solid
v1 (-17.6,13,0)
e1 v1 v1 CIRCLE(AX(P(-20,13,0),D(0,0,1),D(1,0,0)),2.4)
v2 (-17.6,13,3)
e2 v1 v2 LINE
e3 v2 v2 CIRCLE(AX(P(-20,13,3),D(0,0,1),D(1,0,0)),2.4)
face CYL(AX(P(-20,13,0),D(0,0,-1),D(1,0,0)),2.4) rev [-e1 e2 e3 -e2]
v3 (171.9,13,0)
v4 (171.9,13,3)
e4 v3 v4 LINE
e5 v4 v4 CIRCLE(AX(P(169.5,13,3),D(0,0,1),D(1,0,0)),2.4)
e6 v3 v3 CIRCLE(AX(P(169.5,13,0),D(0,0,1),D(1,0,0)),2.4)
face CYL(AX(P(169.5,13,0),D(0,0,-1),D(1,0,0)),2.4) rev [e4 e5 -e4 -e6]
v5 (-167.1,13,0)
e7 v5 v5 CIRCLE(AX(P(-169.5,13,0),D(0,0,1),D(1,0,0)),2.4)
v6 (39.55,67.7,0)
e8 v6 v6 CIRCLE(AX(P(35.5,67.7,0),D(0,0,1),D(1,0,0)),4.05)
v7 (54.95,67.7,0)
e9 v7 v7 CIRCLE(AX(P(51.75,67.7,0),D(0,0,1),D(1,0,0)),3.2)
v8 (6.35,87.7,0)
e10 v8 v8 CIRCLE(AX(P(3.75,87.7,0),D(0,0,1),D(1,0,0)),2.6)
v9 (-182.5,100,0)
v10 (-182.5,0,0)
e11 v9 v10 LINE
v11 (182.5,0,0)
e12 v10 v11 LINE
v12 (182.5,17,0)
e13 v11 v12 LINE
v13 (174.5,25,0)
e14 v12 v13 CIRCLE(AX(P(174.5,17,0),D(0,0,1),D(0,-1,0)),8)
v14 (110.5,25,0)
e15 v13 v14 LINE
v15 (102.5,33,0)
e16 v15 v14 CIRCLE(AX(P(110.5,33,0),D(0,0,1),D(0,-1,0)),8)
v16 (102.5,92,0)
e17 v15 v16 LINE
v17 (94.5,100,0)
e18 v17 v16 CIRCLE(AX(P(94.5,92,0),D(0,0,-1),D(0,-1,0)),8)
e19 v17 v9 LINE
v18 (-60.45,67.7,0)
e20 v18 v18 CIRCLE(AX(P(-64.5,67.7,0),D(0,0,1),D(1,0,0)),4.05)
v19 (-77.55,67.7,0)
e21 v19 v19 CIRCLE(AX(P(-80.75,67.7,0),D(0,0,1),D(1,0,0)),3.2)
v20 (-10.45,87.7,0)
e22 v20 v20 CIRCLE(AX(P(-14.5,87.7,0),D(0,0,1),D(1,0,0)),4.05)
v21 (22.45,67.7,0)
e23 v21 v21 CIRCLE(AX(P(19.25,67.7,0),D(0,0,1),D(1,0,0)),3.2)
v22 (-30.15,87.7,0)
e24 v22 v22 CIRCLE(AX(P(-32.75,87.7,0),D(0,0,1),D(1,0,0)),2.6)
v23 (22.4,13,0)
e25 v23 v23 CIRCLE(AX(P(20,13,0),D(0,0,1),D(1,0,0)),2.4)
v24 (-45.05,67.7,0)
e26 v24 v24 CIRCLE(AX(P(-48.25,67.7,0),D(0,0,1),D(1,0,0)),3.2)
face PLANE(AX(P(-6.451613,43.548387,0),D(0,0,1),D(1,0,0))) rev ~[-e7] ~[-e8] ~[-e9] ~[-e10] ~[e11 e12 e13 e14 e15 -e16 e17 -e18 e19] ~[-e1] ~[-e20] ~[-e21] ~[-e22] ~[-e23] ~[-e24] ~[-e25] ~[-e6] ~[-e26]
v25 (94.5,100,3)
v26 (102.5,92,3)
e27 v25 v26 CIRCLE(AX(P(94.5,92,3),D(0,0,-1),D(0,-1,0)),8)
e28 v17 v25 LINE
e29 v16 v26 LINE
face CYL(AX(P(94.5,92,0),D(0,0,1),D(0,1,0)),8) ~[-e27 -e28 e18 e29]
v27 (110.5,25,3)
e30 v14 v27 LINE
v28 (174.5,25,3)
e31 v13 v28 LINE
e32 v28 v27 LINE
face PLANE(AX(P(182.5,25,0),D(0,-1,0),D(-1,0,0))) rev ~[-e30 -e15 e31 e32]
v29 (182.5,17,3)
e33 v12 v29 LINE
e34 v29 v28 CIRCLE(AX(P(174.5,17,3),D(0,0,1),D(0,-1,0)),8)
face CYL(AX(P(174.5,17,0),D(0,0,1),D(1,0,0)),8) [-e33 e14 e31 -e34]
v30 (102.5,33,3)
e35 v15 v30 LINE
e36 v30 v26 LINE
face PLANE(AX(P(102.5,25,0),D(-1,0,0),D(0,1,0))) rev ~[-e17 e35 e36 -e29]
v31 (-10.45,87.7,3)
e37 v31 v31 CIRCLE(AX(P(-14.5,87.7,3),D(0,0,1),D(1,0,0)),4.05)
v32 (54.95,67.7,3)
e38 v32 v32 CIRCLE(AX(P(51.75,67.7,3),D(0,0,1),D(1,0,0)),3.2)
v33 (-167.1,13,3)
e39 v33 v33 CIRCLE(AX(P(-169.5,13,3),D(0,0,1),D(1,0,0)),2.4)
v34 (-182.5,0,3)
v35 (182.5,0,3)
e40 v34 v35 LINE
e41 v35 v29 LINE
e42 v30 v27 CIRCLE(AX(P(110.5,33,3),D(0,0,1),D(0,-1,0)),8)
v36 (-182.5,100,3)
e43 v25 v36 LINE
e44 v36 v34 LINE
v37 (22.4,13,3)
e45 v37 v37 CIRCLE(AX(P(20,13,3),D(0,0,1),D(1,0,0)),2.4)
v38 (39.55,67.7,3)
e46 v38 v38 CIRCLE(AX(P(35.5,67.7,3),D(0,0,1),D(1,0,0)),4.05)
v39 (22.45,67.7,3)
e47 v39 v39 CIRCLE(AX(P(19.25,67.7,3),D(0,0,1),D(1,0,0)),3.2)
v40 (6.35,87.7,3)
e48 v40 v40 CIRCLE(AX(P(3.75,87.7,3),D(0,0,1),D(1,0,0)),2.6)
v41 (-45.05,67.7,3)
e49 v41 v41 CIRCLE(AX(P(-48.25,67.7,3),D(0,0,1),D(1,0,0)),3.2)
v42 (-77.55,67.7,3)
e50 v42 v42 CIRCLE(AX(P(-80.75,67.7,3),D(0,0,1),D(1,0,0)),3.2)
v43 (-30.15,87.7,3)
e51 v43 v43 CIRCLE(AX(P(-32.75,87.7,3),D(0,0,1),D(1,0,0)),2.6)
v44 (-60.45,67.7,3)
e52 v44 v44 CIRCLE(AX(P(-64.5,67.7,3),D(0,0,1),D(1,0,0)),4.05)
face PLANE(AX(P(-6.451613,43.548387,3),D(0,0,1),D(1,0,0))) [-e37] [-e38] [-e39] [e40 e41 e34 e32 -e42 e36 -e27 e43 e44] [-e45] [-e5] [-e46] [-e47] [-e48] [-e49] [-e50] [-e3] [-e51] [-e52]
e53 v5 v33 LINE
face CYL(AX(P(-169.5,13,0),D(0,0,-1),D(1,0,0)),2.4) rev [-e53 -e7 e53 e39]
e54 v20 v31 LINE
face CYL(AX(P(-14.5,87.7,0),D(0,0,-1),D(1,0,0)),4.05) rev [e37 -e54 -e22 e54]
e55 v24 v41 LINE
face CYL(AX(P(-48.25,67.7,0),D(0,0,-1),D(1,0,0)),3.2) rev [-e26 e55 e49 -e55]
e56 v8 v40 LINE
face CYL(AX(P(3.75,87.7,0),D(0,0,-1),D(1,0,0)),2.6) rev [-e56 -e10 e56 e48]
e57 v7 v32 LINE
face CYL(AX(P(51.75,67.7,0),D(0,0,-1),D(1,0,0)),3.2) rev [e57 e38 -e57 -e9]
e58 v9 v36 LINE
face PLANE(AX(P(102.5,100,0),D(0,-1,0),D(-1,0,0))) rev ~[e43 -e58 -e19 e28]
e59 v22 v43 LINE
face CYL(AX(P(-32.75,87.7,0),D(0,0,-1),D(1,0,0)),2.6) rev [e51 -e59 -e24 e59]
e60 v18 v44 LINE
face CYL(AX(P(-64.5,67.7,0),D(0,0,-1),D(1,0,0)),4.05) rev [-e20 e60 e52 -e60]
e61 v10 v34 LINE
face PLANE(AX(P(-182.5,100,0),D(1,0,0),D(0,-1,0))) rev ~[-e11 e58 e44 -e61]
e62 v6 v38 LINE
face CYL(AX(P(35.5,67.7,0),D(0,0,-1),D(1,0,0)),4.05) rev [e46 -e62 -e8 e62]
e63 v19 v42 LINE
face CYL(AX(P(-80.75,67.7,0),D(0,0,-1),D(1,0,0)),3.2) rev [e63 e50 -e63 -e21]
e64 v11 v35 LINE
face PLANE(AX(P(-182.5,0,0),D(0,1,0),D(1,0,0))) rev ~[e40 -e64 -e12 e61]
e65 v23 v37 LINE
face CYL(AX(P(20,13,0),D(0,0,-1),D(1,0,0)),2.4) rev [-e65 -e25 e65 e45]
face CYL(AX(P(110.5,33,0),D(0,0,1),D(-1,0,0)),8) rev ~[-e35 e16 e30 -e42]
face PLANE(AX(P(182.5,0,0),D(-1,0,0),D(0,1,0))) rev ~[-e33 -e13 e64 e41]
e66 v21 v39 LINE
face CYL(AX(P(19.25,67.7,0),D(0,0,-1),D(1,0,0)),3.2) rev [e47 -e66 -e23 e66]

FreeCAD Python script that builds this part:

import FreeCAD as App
import Part
import Sketcher
from FreeCAD import Vector
Q = App.Units.Quantity


def edges_at(feature, points):
    """Names of the edges that pass closest to the given points."""
    edges = feature.Shape.Edges
    near = lambda p: min(range(len(edges)), key=lambda i: edges[i].distToShape(Part.Vertex(*p))[0])
    return sorted({f"Edge{near(p) + 1}" for p in points})

doc = App.newDocument("Part")
params = doc.addObject("Spreadsheet::Sheet", "Params")
for row, (alias, value) in enumerate([
    ("sketch1_diameter", "4.8 mm"),
    ("sketch1_diameter2", "6.4 mm"),
    ("sketch1_diameter3", "8.1 mm"),
    ("sketch1_diameter4", "5.2 mm"),
    ("sketch1_width", "365 mm"),
    ("pad1_length", "3 mm"),
    ("fillet_radius", "8 mm"),
], start=1):
    params.set(f"A{row}", alias)
    params.set(f"B{row}", "=" + value)
    params.setAlias(f"B{row}", alias)

body = doc.addObject("PartDesign::Body", "Body")

# Sketch on XY plane
sketch1 = body.newObject("Sketcher::SketchObject", "Sketch")
sketch1.AttachmentSupport = (doc.getObject("XY_Plane"), [""])
sketch1.MapMode = "FlatFace"
sketch1.addGeometry(Part.LineSegment(Vector(-182.5, 100, 0), Vector(-182.5, 0, 0)), False)
sketch1.addGeometry(Part.LineSegment(Vector(-182.5, 0, 0), Vector(182.5, 0, 0)), False)
sketch1.addGeometry(Part.LineSegment(Vector(182.5, 0, 0), Vector(182.5, 25, 0)), False)
sketch1.addGeometry(Part.LineSegment(Vector(182.5, 25, 0), Vector(102.5, 25, 0)), False)
sketch1.addGeometry(Part.LineSegment(Vector(102.5, 25, 0), Vector(102.5, 100, 0)), False)
sketch1.addGeometry(Part.LineSegment(Vector(102.5, 100, 0), Vector(-182.5, 100, 0)), False)
sketch1.addGeometry(Part.Circle(Vector(-169.5, 13, 0), Vector(0, 0, 1), 2.4), False)
sketch1.addGeometry(Part.Circle(Vector(-20, 13, 0), Vector(0, 0, 1), 2.4), False)
sketch1.addGeometry(Part.Circle(Vector(20, 13, 0), Vector(0, 0, 1), 2.4), False)
sketch1.addGeometry(Part.Circle(Vector(169.5, 13, 0), Vector(0, 0, 1), 2.4), False)
sketch1.addGeometry(Part.Circle(Vector(-80.8, 67.7, 0), Vector(0, 0, 1), 3.2), False)
sketch1.addGeometry(Part.Circle(Vector(-64.5, 67.7, 0), Vector(0, 0, 1), 4), False)
sketch1.addGeometry(Part.Circle(Vector(-48.2, 67.7, 0), Vector(0, 0, 1), 3.2), False)
sketch1.addGeometry(Part.Circle(Vector(-32.8, 87.7, 0), Vector(0, 0, 1), 2.6), False)
sketch1.addGeometry(Part.Circle(Vector(-14.5, 87.7, 0), Vector(0, 0, 1), 4), False)
sketch1.addGeometry(Part.Circle(Vector(19.2, 67.7, 0), Vector(0, 0, 1), 3.2), False)
sketch1.addGeometry(Part.Circle(Vector(35.5, 67.7, 0), Vector(0, 0, 1), 4), False)
sketch1.addGeometry(Part.Circle(Vector(51.8, 67.7, 0), Vector(0, 0, 1), 3.2), False)
sketch1.addGeometry(Part.Circle(Vector(3.8, 87.7, 0), Vector(0, 0, 1), 2.6), False)
sketch1.addConstraint(Sketcher.Constraint("Coincident", 0, 2, 1, 1))
sketch1.addConstraint(Sketcher.Constraint("Coincident", 1, 2, 2, 1))
sketch1.addConstraint(Sketcher.Constraint("Coincident", 2, 2, 3, 1))
sketch1.addConstraint(Sketcher.Constraint("Coincident", 3, 2, 4, 1))
sketch1.addConstraint(Sketcher.Constraint("Coincident", 4, 2, 5, 1))
sketch1.addConstraint(Sketcher.Constraint("Coincident", 5, 2, 0, 1))
sketch1.addConstraint(Sketcher.Constraint("Vertical", 0))
sketch1.addConstraint(Sketcher.Constraint("Horizontal", 1))
sketch1.addConstraint(Sketcher.Constraint("Vertical", 2))
sketch1.addConstraint(Sketcher.Constraint("Horizontal", 3))
sketch1.addConstraint(Sketcher.Constraint("Vertical", 4))
sketch1.addConstraint(Sketcher.Constraint("Horizontal", 5))
sketch1.addConstraint(Sketcher.Constraint("Equal", 6, 7))
sketch1.addConstraint(Sketcher.Constraint("Equal", 7, 8))
sketch1.addConstraint(Sketcher.Constraint("Equal", 8, 9))
sketch1.addConstraint(Sketcher.Constraint("Equal", 10, 12))
sketch1.addConstraint(Sketcher.Constraint("Equal", 11, 14))
sketch1.addConstraint(Sketcher.Constraint("Equal", 12, 15))
sketch1.addConstraint(Sketcher.Constraint("Equal", 14, 16))
sketch1.addConstraint(Sketcher.Constraint("Equal", 15, 17))
sketch1.addConstraint(Sketcher.Constraint("Equal", 13, 18))
sketch1.addConstraint(Sketcher.Constraint("Symmetric", 0, 2, 1, 2, -1, 1))
sketch1.addConstraint(Sketcher.Constraint("Symmetric", 7, 3, 8, 3, -2))
sketch1.addConstraint(Sketcher.Constraint("Symmetric", 6, 3, 9, 3, -2))
sketch1.addConstraint(Sketcher.Constraint("Horizontal", 6, 3, 7, 3))
sketch1.addConstraint(Sketcher.Constraint("Horizontal", 10, 3, 11, 3))
sketch1.addConstraint(Sketcher.Constraint("Horizontal", 11, 3, 12, 3))
sketch1.addConstraint(Sketcher.Constraint("Horizontal", 13, 3, 14, 3))
sketch1.addConstraint(Sketcher.Constraint("Horizontal", 12, 3, 15, 3))
sketch1.addConstraint(Sketcher.Constraint("Horizontal", 15, 3, 16, 3))
sketch1.addConstraint(Sketcher.Constraint("Horizontal", 16, 3, 17, 3))
sketch1.addConstraint(Sketcher.Constraint("Horizontal", 14, 3, 18, 3))
sketch1.addConstraint(Sketcher.Constraint("Diameter", 6, Q("4.8 mm")))
sketch1.addConstraint(Sketcher.Constraint("Diameter", 10, Q("6.4 mm")))
sketch1.addConstraint(Sketcher.Constraint("Diameter", 11, Q("8.1 mm")))
sketch1.addConstraint(Sketcher.Constraint("Diameter", 13, Q("5.2 mm")))
sketch1.addConstraint(Sketcher.Constraint("DistanceX", 1, 1, 1, 2, Q("365 mm")))
sketch1.addConstraint(Sketcher.Constraint("DistanceX", 3, 2, 3, 1, Q("80 mm")))
sketch1.addConstraint(Sketcher.Constraint("DistanceY", 0, 2, 0, 1, Q("100 mm")))
sketch1.addConstraint(Sketcher.Constraint("DistanceY", 2, 1, 2, 2, Q("25 mm")))
sketch1.addConstraint(Sketcher.Constraint("DistanceY", -1, 1, 6, 3, Q("13 mm")))
sketch1.addConstraint(Sketcher.Constraint("DistanceX", 7, 3, -1, 1, Q("20 mm")))
sketch1.addConstraint(Sketcher.Constraint("DistanceX", 6, 3, 9, 3, Q("339 mm")))
sketch1.addConstraint(Sketcher.Constraint("DistanceX", 6, 3, 11, 3, Q("105 mm")))
sketch1.addConstraint(Sketcher.Constraint("DistanceY", 12, 3, 13, 3, Q("20 mm")))
sketch1.addConstraint(Sketcher.Constraint("DistanceX", 10, 3, 13, 3, Q("48 mm")))
sketch1.addConstraint(Sketcher.Constraint("DistanceX", 11, 3, 14, 3, Q("50 mm")))
sketch1.addConstraint(Sketcher.Constraint("DistanceX", 13, 3, 15, 3, Q("52 mm")))
sketch1.addConstraint(Sketcher.Constraint("DistanceX", 14, 3, 16, 3, Q("50 mm")))
sketch1.addConstraint(Sketcher.Constraint("DistanceX", 18, 3, 17, 3, Q("48 mm")))
sketch1.addConstraint(Sketcher.Constraint("DistanceY", -1, 1, 10, 3, Q("67.7 mm")))
sketch1.addConstraint(Sketcher.Constraint("DistanceX", 10, 3, 12, 3, Q("32.5 mm")))
sketch1.addConstraint(Sketcher.Constraint("DistanceX", 15, 3, 17, 3, Q("32.5 mm")))
sketch1.addConstraint(Sketcher.Constraint("DistanceX", 10, 3, -1, 1, Q("80.75 mm")))
sketch1.setExpression("Constraints[32]", "Params.sketch1_diameter")
sketch1.setExpression("Constraints[33]", "Params.sketch1_diameter2")
sketch1.setExpression("Constraints[34]", "Params.sketch1_diameter3")
sketch1.setExpression("Constraints[35]", "Params.sketch1_diameter4")
sketch1.setExpression("Constraints[36]", "Params.sketch1_width")
pad1 = body.newObject("PartDesign::Pad", "Pad")
pad1.Profile = sketch1
pad1.setExpression("Length", "Params.pad1_length")
doc.recompute()

fillet = body.newObject("PartDesign::Fillet", "Fillet")
fillet.Base = (pad1, edges_at(pad1, [(102.5, 100, 1.5), (102.5, 25, 1.5), (182.5, 25, 1.5)]))
fillet.setExpression("Radius", "Params.fillet_radius")

doc.recompute()
